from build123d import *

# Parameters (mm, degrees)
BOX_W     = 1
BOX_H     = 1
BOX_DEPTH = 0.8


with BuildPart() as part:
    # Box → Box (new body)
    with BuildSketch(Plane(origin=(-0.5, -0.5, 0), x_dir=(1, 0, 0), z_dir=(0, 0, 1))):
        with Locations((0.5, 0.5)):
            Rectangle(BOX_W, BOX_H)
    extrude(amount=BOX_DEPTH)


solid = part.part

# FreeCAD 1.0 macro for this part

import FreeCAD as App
import Part
import Sketcher


def add_polygon(sketch, points):
    """Adds a closed chain of lines whose ends are joined by coincident constraints."""
    first, n = sketch.GeometryCount, len(points)
    for a, b in zip(points, points[1:] + points[:1]):
        sketch.addGeometry(Part.LineSegment(App.Vector(*a, 0), App.Vector(*b, 0)), False)
    for i in range(n):
        sketch.addConstraint(Sketcher.Constraint("Coincident", first + i, 2, first + (i + 1) % n, 1))

doc = App.newDocument("Part")
body = doc.addObject("PartDesign::Body", "Body")

sketch1 = body.newObject("Sketcher::SketchObject", "Sketch")
sketch1.AttachmentSupport = (doc.getObject("XY_Plane"), [""])
sketch1.MapMode = "FlatFace"
add_polygon(sketch1, [(-0.5, 0.5), (-0.5, -0.5), (0.5, -0.5), (0.5, 0.5)])
sketch1.addConstraint([
    Sketcher.Constraint("Vertical", 0),
    Sketcher.Constraint("Horizontal", 1),
    Sketcher.Constraint("Vertical", 2),
    Sketcher.Constraint("Horizontal", 3),
    Sketcher.Constraint("Symmetric", 0, 2, 2, 2, -1, 1),
    Sketcher.Constraint("Equal", 3, 0),
    Sketcher.Constraint("DistanceX", 1, 1, 1, 2, 1.0),
])
pad1 = body.newObject("PartDesign::Pad", "Pad")
pad1.Profile = sketch1
pad1.Length = 0.8

doc.recompute()
